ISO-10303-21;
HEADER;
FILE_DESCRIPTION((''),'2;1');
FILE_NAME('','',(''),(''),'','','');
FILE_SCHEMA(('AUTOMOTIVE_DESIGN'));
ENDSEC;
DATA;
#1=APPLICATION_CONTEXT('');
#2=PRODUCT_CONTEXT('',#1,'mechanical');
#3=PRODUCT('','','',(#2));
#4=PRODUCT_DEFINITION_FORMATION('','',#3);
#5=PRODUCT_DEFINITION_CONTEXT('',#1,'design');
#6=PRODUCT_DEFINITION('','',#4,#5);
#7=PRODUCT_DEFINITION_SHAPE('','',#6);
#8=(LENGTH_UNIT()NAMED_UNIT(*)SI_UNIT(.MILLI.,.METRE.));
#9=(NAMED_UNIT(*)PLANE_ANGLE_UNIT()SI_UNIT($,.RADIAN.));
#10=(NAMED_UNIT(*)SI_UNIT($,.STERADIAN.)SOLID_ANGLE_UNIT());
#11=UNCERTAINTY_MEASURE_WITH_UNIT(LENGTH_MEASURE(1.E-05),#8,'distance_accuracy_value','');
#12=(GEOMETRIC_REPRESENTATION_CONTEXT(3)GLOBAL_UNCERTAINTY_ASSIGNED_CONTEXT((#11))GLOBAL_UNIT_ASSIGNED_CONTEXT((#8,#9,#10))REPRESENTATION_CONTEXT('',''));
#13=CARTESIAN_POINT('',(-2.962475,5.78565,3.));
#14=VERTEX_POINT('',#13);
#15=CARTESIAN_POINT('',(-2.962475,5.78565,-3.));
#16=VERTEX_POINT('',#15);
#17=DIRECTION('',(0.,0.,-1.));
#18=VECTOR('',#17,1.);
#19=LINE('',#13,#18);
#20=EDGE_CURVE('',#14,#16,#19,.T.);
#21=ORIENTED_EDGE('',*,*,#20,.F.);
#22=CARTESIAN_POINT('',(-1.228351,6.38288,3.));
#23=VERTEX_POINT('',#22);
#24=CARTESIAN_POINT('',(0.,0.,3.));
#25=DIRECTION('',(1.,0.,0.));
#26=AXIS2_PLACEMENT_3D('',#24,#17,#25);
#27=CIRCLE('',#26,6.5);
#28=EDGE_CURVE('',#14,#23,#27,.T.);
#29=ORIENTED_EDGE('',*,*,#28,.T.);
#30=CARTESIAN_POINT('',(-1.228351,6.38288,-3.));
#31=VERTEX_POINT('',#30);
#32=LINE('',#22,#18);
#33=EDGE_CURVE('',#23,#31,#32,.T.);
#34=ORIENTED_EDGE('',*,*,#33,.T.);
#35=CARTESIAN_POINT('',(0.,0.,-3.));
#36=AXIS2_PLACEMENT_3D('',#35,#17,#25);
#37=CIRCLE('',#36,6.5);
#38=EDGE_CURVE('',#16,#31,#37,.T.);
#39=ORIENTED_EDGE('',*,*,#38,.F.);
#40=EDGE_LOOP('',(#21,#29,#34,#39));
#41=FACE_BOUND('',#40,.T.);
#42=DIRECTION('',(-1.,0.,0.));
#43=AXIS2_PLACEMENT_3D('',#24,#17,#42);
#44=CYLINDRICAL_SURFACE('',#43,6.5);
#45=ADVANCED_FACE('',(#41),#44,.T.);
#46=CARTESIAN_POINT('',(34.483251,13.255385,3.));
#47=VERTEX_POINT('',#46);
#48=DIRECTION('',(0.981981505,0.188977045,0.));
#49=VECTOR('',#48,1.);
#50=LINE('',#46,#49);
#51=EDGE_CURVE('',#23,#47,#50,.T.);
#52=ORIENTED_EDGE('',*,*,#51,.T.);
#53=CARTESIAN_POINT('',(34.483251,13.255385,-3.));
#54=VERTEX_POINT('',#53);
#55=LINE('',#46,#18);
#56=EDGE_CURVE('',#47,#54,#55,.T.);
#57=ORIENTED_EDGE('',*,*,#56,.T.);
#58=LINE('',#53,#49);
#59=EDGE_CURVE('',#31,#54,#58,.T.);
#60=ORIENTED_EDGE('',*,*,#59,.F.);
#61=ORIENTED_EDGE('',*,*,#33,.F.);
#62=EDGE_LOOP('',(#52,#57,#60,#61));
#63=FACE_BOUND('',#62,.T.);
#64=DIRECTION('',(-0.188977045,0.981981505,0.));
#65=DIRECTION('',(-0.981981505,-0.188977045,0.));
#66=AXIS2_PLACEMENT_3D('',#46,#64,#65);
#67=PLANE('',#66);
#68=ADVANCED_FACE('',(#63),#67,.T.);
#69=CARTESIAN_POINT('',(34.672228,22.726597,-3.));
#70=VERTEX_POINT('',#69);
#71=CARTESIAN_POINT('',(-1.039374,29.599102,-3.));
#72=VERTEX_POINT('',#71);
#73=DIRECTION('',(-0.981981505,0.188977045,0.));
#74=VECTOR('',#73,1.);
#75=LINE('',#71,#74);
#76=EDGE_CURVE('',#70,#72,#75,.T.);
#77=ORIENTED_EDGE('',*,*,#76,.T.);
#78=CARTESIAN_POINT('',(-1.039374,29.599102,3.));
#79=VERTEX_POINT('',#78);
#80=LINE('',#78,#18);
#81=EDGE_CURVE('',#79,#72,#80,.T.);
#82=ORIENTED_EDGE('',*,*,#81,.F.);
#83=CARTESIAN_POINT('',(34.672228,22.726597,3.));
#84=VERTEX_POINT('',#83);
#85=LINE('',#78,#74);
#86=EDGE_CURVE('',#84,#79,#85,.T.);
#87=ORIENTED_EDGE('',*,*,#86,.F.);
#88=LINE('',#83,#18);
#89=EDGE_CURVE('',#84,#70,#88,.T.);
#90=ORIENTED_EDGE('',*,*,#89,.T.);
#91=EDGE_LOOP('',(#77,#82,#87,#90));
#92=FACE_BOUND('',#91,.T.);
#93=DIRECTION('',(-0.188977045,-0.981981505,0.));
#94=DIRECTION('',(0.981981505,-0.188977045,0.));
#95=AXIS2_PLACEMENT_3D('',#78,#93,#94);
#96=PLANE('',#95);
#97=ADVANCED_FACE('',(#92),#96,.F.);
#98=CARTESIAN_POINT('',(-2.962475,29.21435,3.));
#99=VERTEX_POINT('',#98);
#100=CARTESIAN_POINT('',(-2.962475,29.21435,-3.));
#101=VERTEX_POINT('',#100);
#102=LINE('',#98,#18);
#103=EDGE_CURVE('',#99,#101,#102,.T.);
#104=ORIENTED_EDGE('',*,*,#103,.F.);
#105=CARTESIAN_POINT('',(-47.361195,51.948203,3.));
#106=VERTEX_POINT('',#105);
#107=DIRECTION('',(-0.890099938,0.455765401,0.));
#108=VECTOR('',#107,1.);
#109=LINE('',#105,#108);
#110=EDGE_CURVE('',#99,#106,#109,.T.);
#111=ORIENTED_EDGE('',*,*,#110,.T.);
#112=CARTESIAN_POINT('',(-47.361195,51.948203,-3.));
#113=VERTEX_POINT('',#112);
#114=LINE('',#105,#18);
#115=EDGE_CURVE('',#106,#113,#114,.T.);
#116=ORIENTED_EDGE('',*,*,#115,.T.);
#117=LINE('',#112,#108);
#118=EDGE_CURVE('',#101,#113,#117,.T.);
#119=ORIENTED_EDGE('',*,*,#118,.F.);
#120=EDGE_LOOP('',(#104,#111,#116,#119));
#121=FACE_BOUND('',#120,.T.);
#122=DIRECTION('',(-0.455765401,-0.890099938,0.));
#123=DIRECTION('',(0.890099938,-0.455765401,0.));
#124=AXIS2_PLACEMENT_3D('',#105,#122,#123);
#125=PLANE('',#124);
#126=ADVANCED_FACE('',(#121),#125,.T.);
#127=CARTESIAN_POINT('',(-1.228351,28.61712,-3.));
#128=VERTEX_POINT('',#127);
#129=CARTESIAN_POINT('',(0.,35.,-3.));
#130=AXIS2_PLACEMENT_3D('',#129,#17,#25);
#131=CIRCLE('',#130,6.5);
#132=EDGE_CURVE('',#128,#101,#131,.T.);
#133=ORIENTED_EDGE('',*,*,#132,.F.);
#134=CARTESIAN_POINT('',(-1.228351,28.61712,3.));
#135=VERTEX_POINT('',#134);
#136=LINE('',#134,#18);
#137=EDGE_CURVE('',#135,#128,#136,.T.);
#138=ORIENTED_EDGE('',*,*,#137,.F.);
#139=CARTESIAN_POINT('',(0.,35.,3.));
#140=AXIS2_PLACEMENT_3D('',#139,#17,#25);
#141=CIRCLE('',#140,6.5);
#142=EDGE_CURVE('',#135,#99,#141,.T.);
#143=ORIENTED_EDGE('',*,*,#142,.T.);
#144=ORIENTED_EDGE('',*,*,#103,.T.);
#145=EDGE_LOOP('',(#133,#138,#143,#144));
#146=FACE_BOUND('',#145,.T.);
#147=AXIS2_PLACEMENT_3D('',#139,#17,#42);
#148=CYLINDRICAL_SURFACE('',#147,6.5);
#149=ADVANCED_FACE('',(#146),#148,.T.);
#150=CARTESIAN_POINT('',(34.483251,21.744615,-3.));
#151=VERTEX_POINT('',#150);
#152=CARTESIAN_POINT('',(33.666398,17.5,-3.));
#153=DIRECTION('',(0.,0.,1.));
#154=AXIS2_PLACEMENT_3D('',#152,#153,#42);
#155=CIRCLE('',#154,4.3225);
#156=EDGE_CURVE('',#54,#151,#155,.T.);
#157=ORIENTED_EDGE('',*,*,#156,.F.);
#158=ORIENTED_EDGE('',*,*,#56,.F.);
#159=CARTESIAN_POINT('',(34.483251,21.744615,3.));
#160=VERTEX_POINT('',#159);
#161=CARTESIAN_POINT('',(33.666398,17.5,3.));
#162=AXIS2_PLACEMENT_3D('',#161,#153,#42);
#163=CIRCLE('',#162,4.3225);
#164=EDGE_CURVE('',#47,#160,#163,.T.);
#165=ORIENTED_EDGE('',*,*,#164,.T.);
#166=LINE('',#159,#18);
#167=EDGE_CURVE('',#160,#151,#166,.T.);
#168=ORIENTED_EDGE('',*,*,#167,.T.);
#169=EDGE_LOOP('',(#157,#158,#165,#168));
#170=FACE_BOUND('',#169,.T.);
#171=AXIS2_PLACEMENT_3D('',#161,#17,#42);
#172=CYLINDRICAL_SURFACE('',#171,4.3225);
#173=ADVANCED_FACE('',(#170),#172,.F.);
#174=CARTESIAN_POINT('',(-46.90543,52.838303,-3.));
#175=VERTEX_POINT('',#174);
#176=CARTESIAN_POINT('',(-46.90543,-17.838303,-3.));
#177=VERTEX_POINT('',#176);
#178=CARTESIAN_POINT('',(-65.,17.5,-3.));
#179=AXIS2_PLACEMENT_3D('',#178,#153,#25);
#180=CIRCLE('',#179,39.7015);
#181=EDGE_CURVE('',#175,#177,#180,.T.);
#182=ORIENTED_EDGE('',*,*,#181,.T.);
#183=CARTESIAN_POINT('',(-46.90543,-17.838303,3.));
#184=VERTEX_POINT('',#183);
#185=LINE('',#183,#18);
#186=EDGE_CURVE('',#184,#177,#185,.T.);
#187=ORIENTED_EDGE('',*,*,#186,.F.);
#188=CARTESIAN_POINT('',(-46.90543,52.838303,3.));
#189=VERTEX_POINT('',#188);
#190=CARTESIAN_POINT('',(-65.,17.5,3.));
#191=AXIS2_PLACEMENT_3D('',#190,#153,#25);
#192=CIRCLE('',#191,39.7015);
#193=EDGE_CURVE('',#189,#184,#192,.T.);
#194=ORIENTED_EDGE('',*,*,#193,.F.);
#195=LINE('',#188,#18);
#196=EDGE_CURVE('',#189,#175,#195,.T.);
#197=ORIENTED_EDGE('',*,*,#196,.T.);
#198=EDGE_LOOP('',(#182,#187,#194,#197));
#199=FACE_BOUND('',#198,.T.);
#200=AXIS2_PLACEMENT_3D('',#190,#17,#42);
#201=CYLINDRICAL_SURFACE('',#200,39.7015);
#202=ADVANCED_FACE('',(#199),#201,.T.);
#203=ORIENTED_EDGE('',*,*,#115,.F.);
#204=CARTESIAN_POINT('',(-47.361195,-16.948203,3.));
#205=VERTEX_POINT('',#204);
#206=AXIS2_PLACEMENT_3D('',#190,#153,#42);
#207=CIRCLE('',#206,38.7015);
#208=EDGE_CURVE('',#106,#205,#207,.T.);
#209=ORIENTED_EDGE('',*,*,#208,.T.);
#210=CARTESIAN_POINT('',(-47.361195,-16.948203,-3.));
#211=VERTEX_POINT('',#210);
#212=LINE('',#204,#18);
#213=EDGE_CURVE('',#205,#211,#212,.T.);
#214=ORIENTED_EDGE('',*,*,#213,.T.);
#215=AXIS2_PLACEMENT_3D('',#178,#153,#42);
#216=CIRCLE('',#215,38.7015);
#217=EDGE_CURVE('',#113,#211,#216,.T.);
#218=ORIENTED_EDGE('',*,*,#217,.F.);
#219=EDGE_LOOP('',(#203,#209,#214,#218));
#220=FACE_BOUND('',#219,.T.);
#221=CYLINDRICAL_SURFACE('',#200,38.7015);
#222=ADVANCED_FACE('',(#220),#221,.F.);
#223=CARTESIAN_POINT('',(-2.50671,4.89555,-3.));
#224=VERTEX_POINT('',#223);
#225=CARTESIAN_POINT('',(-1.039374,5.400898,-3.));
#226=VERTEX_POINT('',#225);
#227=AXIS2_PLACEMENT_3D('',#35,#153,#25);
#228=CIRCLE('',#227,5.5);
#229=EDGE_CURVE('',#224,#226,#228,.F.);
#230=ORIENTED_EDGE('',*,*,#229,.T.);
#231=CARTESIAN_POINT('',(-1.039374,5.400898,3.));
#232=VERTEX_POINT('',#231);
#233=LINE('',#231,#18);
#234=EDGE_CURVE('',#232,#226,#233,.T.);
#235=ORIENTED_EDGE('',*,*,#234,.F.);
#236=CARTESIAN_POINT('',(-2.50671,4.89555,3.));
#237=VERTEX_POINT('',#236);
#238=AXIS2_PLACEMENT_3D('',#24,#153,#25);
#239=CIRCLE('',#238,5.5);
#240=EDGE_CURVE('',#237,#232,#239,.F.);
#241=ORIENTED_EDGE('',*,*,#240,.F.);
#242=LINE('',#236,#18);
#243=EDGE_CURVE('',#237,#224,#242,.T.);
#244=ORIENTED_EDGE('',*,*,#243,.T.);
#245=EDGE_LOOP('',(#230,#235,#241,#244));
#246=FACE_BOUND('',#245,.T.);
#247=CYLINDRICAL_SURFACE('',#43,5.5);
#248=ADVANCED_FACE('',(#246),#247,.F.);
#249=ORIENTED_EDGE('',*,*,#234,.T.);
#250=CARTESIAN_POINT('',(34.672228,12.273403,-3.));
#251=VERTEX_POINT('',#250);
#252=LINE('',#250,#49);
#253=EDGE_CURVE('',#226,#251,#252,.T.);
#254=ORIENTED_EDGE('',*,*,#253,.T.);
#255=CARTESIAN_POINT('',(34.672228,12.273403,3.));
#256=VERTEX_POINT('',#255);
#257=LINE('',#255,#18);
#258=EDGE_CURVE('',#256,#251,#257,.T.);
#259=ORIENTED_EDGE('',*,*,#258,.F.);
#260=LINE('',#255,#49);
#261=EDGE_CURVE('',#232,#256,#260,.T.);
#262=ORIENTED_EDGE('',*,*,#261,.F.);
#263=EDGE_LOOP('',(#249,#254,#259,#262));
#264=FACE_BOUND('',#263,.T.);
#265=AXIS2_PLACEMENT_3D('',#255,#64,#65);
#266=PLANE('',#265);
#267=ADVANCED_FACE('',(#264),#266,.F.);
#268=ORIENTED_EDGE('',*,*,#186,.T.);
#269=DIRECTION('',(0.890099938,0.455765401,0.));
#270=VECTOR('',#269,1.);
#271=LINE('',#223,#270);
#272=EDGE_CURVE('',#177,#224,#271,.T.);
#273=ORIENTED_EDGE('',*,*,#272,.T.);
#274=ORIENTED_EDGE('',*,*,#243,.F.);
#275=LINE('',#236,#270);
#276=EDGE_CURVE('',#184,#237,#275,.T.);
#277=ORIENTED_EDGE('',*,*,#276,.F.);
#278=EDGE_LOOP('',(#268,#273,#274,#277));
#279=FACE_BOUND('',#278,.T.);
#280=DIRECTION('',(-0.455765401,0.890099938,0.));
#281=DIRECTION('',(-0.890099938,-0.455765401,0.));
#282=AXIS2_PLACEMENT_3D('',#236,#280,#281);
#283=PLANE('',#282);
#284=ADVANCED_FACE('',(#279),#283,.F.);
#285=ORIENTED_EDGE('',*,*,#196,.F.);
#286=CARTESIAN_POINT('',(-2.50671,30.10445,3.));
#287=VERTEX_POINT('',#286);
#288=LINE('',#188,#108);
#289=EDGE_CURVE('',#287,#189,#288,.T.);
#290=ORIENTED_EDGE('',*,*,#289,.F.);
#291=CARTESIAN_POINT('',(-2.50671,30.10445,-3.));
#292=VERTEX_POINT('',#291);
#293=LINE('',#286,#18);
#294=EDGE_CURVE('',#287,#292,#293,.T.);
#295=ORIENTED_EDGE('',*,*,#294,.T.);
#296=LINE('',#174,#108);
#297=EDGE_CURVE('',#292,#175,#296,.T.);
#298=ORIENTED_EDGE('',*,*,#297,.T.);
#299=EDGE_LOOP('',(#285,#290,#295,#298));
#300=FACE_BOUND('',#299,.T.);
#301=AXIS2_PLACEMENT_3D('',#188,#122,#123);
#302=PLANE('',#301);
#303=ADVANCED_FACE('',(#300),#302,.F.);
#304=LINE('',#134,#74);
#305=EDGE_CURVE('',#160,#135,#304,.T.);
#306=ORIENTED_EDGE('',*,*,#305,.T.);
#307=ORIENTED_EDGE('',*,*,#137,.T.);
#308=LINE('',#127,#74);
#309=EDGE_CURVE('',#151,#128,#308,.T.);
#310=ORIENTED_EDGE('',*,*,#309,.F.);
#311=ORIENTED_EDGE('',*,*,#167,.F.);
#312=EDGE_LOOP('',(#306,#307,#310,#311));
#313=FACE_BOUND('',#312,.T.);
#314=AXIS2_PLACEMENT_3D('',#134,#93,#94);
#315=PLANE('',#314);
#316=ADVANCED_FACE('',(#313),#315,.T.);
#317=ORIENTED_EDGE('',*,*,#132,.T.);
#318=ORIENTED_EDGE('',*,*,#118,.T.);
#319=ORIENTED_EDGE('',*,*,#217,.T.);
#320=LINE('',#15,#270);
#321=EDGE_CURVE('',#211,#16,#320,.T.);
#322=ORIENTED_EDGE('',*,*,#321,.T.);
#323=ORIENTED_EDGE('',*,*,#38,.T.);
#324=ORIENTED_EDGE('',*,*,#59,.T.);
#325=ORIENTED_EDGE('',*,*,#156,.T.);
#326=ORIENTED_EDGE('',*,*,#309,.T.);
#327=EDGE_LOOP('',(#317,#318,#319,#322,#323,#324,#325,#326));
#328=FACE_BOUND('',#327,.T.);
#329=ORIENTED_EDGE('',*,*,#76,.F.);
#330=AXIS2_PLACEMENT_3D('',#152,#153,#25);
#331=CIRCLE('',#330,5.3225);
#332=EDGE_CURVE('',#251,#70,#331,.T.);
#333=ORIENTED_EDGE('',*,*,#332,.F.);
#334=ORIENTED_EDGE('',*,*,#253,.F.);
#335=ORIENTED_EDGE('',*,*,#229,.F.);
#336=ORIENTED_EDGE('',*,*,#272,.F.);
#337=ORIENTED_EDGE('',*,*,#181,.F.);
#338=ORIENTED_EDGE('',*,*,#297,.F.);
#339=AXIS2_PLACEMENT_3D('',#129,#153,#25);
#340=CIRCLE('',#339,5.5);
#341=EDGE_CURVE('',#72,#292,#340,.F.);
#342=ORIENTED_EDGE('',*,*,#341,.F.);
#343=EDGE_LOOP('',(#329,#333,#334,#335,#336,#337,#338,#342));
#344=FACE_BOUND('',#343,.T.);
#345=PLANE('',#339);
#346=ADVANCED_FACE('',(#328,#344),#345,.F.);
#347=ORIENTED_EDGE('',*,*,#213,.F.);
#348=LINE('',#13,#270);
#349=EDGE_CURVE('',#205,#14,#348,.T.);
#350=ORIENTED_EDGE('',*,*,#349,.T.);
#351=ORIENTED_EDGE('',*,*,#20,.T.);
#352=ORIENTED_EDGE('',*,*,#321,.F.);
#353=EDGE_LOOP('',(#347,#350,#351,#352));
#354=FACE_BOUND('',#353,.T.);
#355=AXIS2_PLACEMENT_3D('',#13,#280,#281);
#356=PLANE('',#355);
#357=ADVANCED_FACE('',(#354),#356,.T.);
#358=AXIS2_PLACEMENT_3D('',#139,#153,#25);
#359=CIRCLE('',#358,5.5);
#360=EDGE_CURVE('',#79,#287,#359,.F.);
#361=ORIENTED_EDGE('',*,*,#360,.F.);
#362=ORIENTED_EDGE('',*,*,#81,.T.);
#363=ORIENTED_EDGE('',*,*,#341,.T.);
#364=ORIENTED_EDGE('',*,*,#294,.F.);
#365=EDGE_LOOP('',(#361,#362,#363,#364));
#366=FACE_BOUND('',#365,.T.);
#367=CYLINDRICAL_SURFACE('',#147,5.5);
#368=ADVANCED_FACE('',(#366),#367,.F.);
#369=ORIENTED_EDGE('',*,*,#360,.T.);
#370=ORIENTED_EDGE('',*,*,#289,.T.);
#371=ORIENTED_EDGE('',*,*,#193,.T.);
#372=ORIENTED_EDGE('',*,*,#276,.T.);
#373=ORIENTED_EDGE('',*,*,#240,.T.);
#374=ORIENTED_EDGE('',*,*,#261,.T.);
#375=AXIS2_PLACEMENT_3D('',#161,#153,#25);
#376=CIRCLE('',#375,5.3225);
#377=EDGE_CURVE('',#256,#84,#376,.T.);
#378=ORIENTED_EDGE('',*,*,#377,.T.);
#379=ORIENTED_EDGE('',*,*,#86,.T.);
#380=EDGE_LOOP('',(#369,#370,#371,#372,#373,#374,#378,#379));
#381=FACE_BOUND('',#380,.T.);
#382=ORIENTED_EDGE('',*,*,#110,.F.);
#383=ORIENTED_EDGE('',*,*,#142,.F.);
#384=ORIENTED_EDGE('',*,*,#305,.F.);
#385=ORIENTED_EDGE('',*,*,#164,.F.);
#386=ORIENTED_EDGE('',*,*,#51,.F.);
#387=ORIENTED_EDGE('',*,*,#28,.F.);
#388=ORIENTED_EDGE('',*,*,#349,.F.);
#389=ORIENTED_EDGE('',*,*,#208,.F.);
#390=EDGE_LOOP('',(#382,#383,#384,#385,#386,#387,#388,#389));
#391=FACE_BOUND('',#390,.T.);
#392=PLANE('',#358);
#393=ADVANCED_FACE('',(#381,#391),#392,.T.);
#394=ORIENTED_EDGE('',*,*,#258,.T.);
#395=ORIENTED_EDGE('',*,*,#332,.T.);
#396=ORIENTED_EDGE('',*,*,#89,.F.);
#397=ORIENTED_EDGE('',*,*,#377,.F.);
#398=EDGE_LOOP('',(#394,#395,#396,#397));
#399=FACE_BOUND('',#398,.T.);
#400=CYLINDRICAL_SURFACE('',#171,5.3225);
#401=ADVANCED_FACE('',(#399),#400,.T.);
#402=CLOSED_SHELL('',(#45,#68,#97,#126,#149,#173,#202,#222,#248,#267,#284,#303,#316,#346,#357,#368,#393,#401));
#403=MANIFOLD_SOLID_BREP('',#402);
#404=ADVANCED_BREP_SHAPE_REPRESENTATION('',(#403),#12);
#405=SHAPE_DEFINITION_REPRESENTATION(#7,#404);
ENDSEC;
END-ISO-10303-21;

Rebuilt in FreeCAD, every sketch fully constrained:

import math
import FreeCAD as App
import Part
import Sketcher

V = App.Vector

doc = App.newDocument("Part")
body = doc.addObject("PartDesign::Body", "Body")

sketch1 = body.newObject("Sketcher::SketchObject", "Sketch")
sketch1.AttachmentSupport = (doc.getObject("XY_Plane"), [""])
sketch1.MapMode = "FlatFace"
sketch1.addGeometry(Part.LineSegment(V(-2.50671, 30.10445, 0), V(-46.90543, 52.838303, 0)), False)
sketch1.addGeometry(Part.ArcOfCircle(Part.Circle(V(-65, 17.5, 0), V(0, 0, 1), 39.7015), math.radians(62.885808), math.radians(297.114192)), False)
sketch1.addGeometry(Part.LineSegment(V(-46.90543, -17.838303, 0), V(-2.50671, 4.89555, 0)), False)
sketch1.addGeometry(Part.ArcOfCircle(Part.Circle(V(0, 0, 0), V(0, 0, 1), 5.5), math.radians(100.893092), math.radians(117.114192)), False)
sketch1.addGeometry(Part.LineSegment(V(-1.039374, 5.400898, 0), V(34.672228, 12.273403, 0)), False)
sketch1.addGeometry(Part.ArcOfCircle(Part.Circle(V(33.666398, 17.5, 0), V(0, 0, 1), 5.3225), math.radians(-79.106908), math.radians(79.106908)), False)
sketch1.addGeometry(Part.LineSegment(V(34.672228, 22.726597, 0), V(-1.039374, 29.599102, 0)), False)
sketch1.addGeometry(Part.ArcOfCircle(Part.Circle(V(0, 35, 0), V(0, 0, 1), 5.5), math.radians(-117.114192), math.radians(-100.893092)), False)
sketch1.addGeometry(Part.LineSegment(V(-47.361195, 51.948203, 0), V(-2.962475, 29.21435, 0)), False)
sketch1.addGeometry(Part.ArcOfCircle(Part.Circle(V(0, 35, 0), V(0, 0, 1), 6.5), math.radians(-117.114192), math.radians(-100.893092)), False)
sketch1.addGeometry(Part.LineSegment(V(-1.228351, 28.61712, 0), V(34.483251, 21.744615, 0)), False)
sketch1.addGeometry(Part.ArcOfCircle(Part.Circle(V(33.666398, 17.5, 0), V(0, 0, 1), 4.3225), math.radians(-79.106908), math.radians(79.106908)), False)
sketch1.addGeometry(Part.LineSegment(V(34.483251, 13.255385, 0), V(-1.228351, 6.38288, 0)), False)
sketch1.addGeometry(Part.ArcOfCircle(Part.Circle(V(0, 0, 0), V(0, 0, 1), 6.5), math.radians(100.893092), math.radians(117.114192)), False)
sketch1.addGeometry(Part.LineSegment(V(-2.962475, 5.78565, 0), V(-47.361195, -16.948203, 0)), False)
sketch1.addGeometry(Part.ArcOfCircle(Part.Circle(V(-65, 17.5, 0), V(0, 0, 1), 38.7015), math.radians(62.885808), math.radians(297.114192)), False)
sketch1.addConstraint(Sketcher.Constraint("Coincident", 0, 2, 1, 1))
sketch1.addConstraint(Sketcher.Constraint("Coincident", 1, 2, 2, 1))
sketch1.addConstraint(Sketcher.Constraint("Coincident", 2, 2, 3, 2))
sketch1.addConstraint(Sketcher.Constraint("Coincident", 3, 1, 4, 1))
sketch1.addConstraint(Sketcher.Constraint("Coincident", 4, 2, 5, 1))
sketch1.addConstraint(Sketcher.Constraint("Coincident", 5, 2, 6, 1))
sketch1.addConstraint(Sketcher.Constraint("Coincident", 6, 2, 7, 2))
sketch1.addConstraint(Sketcher.Constraint("Coincident", 7, 1, 0, 1))
sketch1.addConstraint(Sketcher.Constraint("Coincident", 8, 2, 9, 1))
sketch1.addConstraint(Sketcher.Constraint("Coincident", 9, 2, 10, 1))
sketch1.addConstraint(Sketcher.Constraint("Coincident", 10, 2, 11, 2))
sketch1.addConstraint(Sketcher.Constraint("Coincident", 11, 1, 12, 1))
sketch1.addConstraint(Sketcher.Constraint("Coincident", 12, 2, 13, 1))
sketch1.addConstraint(Sketcher.Constraint("Coincident", 13, 2, 14, 1))
sketch1.addConstraint(Sketcher.Constraint("Coincident", 14, 2, 15, 2))
sketch1.addConstraint(Sketcher.Constraint("Coincident", 15, 1, 8, 1))
sketch1.addConstraint(Sketcher.Constraint("Coincident", 3, 3, -1, 1))
sketch1.addConstraint(Sketcher.Constraint("Coincident", 13, 3, -1, 1))
sketch1.addConstraint(Sketcher.Constraint("Coincident", 9, 3, 7, 3))
sketch1.addConstraint(Sketcher.Constraint("Coincident", 11, 3, 5, 3))
sketch1.addConstraint(Sketcher.Constraint("Coincident", 15, 3, 1, 3))
sketch1.addConstraint(Sketcher.Constraint("PointOnObject", 7, 3, -2))
sketch1.addConstraint(Sketcher.Constraint("Radius", 3, 5.5))
sketch1.addConstraint(Sketcher.Constraint("Radius", 7, 5.5))
sketch1.addConstraint(Sketcher.Constraint("Radius", 9, 6.5))
sketch1.addConstraint(Sketcher.Constraint("Radius", 13, 6.5))
sketch1.addConstraint(Sketcher.Constraint("DistanceX", 1, 3, -1, 1, 65.0))
sketch1.addConstraint(Sketcher.Constraint("DistanceY", -1, 1, 7, 3, 35.0))
sketch1.addConstraint(Sketcher.Constraint("DistanceY", -1, 1, 1, 3, 17.5))
sketch1.addConstraint(Sketcher.Constraint("DistanceY", -1, 1, 5, 3, 17.5))
sketch1.addConstraint(Sketcher.Constraint("Radius", 1, 39.7015))
sketch1.addConstraint(Sketcher.Constraint("Radius", 5, 5.3225))
sketch1.addConstraint(Sketcher.Constraint("Radius", 11, 4.3225))
sketch1.addConstraint(Sketcher.Constraint("Radius", 15, 38.7015))
sketch1.addConstraint(Sketcher.Constraint("Distance", 0, 49.880601))
sketch1.addConstraint(Sketcher.Constraint("Distance", 2, 49.880601))
sketch1.addConstraint(Sketcher.Constraint("Distance", 8, 49.880601))
sketch1.addConstraint(Sketcher.Constraint("Distance", 14, 49.880601))
sketch1.addConstraint(Sketcher.Constraint("DistanceY", -1, 1, 3, 1, 5.400898))
sketch1.addConstraint(Sketcher.Constraint("DistanceY", -1, 1, 6, 2, 29.599102))
sketch1.addConstraint(Sketcher.Constraint("DistanceX", 3, 1, 4, 2, 35.711602))
sketch1.addConstraint(Sketcher.Constraint("DistanceY", 2, 2, 7, 1, 25.208901))
sketch1.addConstraint(Sketcher.Constraint("DistanceY", 8, 2, 7, 1, 0.8901))
sketch1.addConstraint(Sketcher.Constraint("DistanceX", 8, 2, 6, 2, 1.923101))
sketch1.addConstraint(Sketcher.Constraint("DistanceX", 9, 2, 10, 2, 35.711602))
sketch1.addConstraint(Sketcher.Constraint("DistanceY", 2, 2, 13, 2, 0.8901))
sketch1.addConstraint(Sketcher.Constraint("Distance", 4, 36.366878))
sketch1.addConstraint(Sketcher.Constraint("Distance", 6, 36.366878))
sketch1.addConstraint(Sketcher.Constraint("Distance", 12, 36.366878))
sketch1.addConstraint(Sketcher.Constraint("DistanceX", 9, 2, -1, 1, 1.228351))
sketch1.addConstraint(Sketcher.Constraint("DistanceX", -1, 1, 11, 1, 34.483251))
pad1 = body.newObject("PartDesign::Pad", "Pad")
pad1.Profile = sketch1
pad1.Length = 6
pad1.Midplane = True

doc.recompute()
